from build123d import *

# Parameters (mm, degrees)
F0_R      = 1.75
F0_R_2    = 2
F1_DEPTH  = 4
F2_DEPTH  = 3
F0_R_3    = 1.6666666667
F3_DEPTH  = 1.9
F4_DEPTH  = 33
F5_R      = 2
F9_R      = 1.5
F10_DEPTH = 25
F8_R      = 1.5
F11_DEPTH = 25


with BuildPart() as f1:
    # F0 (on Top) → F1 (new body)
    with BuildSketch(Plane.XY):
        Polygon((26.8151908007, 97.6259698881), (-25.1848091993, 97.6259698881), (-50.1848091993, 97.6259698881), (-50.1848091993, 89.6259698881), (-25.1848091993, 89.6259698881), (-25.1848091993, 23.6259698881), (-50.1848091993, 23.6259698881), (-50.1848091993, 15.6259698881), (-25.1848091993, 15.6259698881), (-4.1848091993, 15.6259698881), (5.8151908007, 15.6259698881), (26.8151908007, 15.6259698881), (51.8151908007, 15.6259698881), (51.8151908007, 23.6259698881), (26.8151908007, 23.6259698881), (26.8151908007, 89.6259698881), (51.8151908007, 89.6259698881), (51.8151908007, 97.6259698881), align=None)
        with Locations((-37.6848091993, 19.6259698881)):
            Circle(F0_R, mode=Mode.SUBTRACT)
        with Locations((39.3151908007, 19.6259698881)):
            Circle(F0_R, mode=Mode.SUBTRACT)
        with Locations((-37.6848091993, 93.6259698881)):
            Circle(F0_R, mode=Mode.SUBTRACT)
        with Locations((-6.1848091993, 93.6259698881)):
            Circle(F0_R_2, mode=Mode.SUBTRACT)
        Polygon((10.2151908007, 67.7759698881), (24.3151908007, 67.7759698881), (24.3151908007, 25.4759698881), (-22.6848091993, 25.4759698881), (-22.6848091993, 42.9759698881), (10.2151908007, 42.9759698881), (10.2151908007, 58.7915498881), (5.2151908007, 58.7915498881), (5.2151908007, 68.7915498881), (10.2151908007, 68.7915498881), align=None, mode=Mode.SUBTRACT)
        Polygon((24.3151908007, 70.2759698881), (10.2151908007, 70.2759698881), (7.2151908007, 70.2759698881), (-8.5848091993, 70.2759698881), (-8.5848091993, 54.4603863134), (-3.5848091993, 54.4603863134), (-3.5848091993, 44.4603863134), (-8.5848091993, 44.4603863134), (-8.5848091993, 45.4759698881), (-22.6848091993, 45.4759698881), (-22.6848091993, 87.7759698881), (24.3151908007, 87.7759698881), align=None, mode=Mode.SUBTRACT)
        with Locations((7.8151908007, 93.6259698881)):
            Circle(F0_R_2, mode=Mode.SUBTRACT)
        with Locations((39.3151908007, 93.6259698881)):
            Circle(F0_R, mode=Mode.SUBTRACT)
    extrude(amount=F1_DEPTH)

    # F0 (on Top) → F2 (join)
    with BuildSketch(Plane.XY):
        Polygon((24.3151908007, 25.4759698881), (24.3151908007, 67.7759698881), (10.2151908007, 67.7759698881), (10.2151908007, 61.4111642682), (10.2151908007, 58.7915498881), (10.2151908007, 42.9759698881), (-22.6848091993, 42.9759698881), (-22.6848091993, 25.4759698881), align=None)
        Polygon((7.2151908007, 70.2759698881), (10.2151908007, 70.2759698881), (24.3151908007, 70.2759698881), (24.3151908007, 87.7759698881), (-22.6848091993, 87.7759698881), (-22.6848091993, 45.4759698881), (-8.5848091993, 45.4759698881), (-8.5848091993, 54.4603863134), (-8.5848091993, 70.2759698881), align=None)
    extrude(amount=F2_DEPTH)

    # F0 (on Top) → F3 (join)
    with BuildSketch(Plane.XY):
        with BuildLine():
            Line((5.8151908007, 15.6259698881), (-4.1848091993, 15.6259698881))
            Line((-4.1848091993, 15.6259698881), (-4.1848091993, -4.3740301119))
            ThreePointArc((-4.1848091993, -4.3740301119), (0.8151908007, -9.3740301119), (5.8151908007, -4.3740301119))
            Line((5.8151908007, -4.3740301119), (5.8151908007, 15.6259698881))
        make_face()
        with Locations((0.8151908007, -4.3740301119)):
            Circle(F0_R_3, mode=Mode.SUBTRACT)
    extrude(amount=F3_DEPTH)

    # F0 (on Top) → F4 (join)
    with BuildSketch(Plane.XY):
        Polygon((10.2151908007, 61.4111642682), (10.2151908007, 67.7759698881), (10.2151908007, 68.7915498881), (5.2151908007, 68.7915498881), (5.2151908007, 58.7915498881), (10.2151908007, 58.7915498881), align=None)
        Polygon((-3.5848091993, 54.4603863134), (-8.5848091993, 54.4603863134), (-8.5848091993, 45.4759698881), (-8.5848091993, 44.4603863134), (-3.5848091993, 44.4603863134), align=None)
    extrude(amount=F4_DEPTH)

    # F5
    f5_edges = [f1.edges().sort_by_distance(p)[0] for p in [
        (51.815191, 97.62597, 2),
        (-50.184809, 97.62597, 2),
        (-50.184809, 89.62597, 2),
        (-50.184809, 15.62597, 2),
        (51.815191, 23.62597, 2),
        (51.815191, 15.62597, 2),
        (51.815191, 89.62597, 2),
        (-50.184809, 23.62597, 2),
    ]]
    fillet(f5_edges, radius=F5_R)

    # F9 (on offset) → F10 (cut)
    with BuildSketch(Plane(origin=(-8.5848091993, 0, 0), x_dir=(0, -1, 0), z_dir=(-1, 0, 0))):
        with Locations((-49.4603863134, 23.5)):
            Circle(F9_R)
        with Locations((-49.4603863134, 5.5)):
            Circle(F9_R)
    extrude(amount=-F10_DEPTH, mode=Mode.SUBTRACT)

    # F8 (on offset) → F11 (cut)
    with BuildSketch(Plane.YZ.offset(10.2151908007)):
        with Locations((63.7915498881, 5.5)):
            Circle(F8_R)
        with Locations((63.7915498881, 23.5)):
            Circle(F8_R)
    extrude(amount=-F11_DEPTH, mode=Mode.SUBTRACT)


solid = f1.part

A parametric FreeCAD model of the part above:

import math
import FreeCAD as App
import Part
import Sketcher

V = App.Vector


def edges_at(feature, points):
    """Names of the edges that pass closest to the given points."""
    edges = feature.Shape.Edges
    near = lambda p: min(range(len(edges)), key=lambda i: edges[i].distToShape(Part.Vertex(*p))[0])
    return sorted({f"Edge{near(p) + 1}" for p in points})

doc = App.newDocument("Part")
body = doc.addObject("PartDesign::Body", "Body")

# Sketch on XY plane
sketch1 = body.newObject("Sketcher::SketchObject", "Sketch")
sketch1.AttachmentSupport = (doc.getObject("XY_Plane"), [""])
sketch1.MapMode = "FlatFace"
sketch1.addGeometry([
    Part.LineSegment(V(-50.184809, 97.62597, 0), V(-50.184809, 89.62597, 0)),  # 0
    Part.LineSegment(V(-50.184809, 89.62597, 0), V(-25.184809, 89.62597, 0)),  # 1
    Part.LineSegment(V(-25.184809, 89.62597, 0), V(-25.184809, 23.62597, 0)),  # 2
    Part.LineSegment(V(-25.184809, 23.62597, 0), V(-50.184809, 23.62597, 0)),  # 3
    Part.LineSegment(V(-50.184809, 23.62597, 0), V(-50.184809, 15.62597, 0)),  # 4
    Part.LineSegment(V(-50.184809, 15.62597, 0), V(51.815191, 15.62597, 0)),  # 5
    Part.LineSegment(V(51.815191, 15.62597, 0), V(51.815191, 23.62597, 0)),  # 6
    Part.LineSegment(V(51.815191, 23.62597, 0), V(26.815191, 23.62597, 0)),  # 7
    Part.LineSegment(V(26.815191, 23.62597, 0), V(26.815191, 89.62597, 0)),  # 8
    Part.LineSegment(V(26.815191, 89.62597, 0), V(51.815191, 89.62597, 0)),  # 9
    Part.LineSegment(V(51.815191, 89.62597, 0), V(51.815191, 97.62597, 0)),  # 10
    Part.LineSegment(V(51.815191, 97.62597, 0), V(-50.184809, 97.62597, 0)),  # 11
    Part.Circle(V(-37.684809, 19.62597, 0), V(0, 0, 1), 1.75),  # 12
    Part.LineSegment(V(10.215191, 68.79155, 0), V(10.215191, 67.77597, 0)),  # 13
    Part.LineSegment(V(10.215191, 67.77597, 0), V(24.315191, 67.77597, 0)),  # 14
    Part.LineSegment(V(24.315191, 67.77597, 0), V(24.315191, 25.47597, 0)),  # 15
    Part.LineSegment(V(24.315191, 25.47597, 0), V(-22.684809, 25.47597, 0)),  # 16
    Part.LineSegment(V(-22.684809, 25.47597, 0), V(-22.684809, 42.97597, 0)),  # 17
    Part.LineSegment(V(-22.684809, 42.97597, 0), V(10.215191, 42.97597, 0)),  # 18
    Part.LineSegment(V(10.215191, 42.97597, 0), V(10.215191, 58.79155, 0)),  # 19
    Part.LineSegment(V(10.215191, 58.79155, 0), V(5.215191, 58.79155, 0)),  # 20
    Part.LineSegment(V(5.215191, 58.79155, 0), V(5.215191, 68.79155, 0)),  # 21
    Part.LineSegment(V(5.215191, 68.79155, 0), V(10.215191, 68.79155, 0)),  # 22
    Part.Circle(V(39.315191, 19.62597, 0), V(0, 0, 1), 1.75),  # 23
    Part.LineSegment(V(24.315191, 87.77597, 0), V(24.315191, 70.27597, 0)),  # 24
    Part.LineSegment(V(24.315191, 70.27597, 0), V(-8.584809, 70.27597, 0)),  # 25
    Part.LineSegment(V(-8.584809, 70.27597, 0), V(-8.584809, 54.460386, 0)),  # 26
    Part.LineSegment(V(-8.584809, 54.460386, 0), V(-3.584809, 54.460386, 0)),  # 27
    Part.LineSegment(V(-3.584809, 54.460386, 0), V(-3.584809, 44.460386, 0)),  # 28
    Part.LineSegment(V(-3.584809, 44.460386, 0), V(-8.584809, 44.460386, 0)),  # 29
    Part.LineSegment(V(-8.584809, 44.460386, 0), V(-8.584809, 45.47597, 0)),  # 30
    Part.LineSegment(V(-8.584809, 45.47597, 0), V(-22.684809, 45.47597, 0)),  # 31
    Part.LineSegment(V(-22.684809, 45.47597, 0), V(-22.684809, 87.77597, 0)),  # 32
    Part.LineSegment(V(-22.684809, 87.77597, 0), V(24.315191, 87.77597, 0)),  # 33
    Part.Circle(V(-37.684809, 93.62597, 0), V(0, 0, 1), 1.75),  # 34
    Part.Circle(V(-6.184809, 93.62597, 0), V(0, 0, 1), 2),  # 35
    Part.Circle(V(7.815191, 93.62597, 0), V(0, 0, 1), 2),  # 36
    Part.Circle(V(39.315191, 93.62597, 0), V(0, 0, 1), 1.75),  # 37
], False)
sketch1.addConstraint([
    Sketcher.Constraint("Coincident", 0, 2, 1, 1),
    Sketcher.Constraint("Coincident", 1, 2, 2, 1),
    Sketcher.Constraint("Coincident", 2, 2, 3, 1),
    Sketcher.Constraint("Coincident", 3, 2, 4, 1),
    Sketcher.Constraint("Coincident", 4, 2, 5, 1),
    Sketcher.Constraint("Coincident", 5, 2, 6, 1),
    Sketcher.Constraint("Coincident", 6, 2, 7, 1),
    Sketcher.Constraint("Coincident", 7, 2, 8, 1),
    Sketcher.Constraint("Coincident", 8, 2, 9, 1),
    Sketcher.Constraint("Coincident", 9, 2, 10, 1),
    Sketcher.Constraint("Coincident", 10, 2, 11, 1),
    Sketcher.Constraint("Coincident", 11, 2, 0, 1),
    Sketcher.Constraint("Coincident", 13, 2, 14, 1),
    Sketcher.Constraint("Coincident", 14, 2, 15, 1),
    Sketcher.Constraint("Coincident", 15, 2, 16, 1),
    Sketcher.Constraint("Coincident", 16, 2, 17, 1),
    Sketcher.Constraint("Coincident", 17, 2, 18, 1),
    Sketcher.Constraint("Coincident", 18, 2, 19, 1),
    Sketcher.Constraint("Coincident", 19, 2, 20, 1),
    Sketcher.Constraint("Coincident", 20, 2, 21, 1),
    Sketcher.Constraint("Coincident", 21, 2, 22, 1),
    Sketcher.Constraint("Coincident", 22, 2, 13, 1),
    Sketcher.Constraint("Coincident", 24, 2, 25, 1),
    Sketcher.Constraint("Coincident", 25, 2, 26, 1),
    Sketcher.Constraint("Coincident", 26, 2, 27, 1),
    Sketcher.Constraint("Coincident", 27, 2, 28, 1),
    Sketcher.Constraint("Coincident", 28, 2, 29, 1),
    Sketcher.Constraint("Coincident", 29, 2, 30, 1),
    Sketcher.Constraint("Coincident", 30, 2, 31, 1),
    Sketcher.Constraint("Coincident", 31, 2, 32, 1),
    Sketcher.Constraint("Coincident", 32, 2, 33, 1),
    Sketcher.Constraint("Coincident", 33, 2, 24, 1),
    Sketcher.Constraint("Vertical", 0),
    Sketcher.Constraint("Horizontal", 1),
    Sketcher.Constraint("Vertical", 2),
    Sketcher.Constraint("Horizontal", 3),
    Sketcher.Constraint("Vertical", 4),
    Sketcher.Constraint("Horizontal", 5),
    Sketcher.Constraint("Vertical", 6),
    Sketcher.Constraint("Horizontal", 7),
    Sketcher.Constraint("Vertical", 8),
    Sketcher.Constraint("Horizontal", 9),
    Sketcher.Constraint("Vertical", 10),
    Sketcher.Constraint("Horizontal", 11),
    Sketcher.Constraint("Vertical", 13),
    Sketcher.Constraint("Horizontal", 14),
    Sketcher.Constraint("Vertical", 15),
    Sketcher.Constraint("Horizontal", 16),
    Sketcher.Constraint("Vertical", 17),
    Sketcher.Constraint("Horizontal", 18),
    Sketcher.Constraint("Vertical", 19),
    Sketcher.Constraint("Horizontal", 20),
    Sketcher.Constraint("Vertical", 21),
    Sketcher.Constraint("Horizontal", 22),
    Sketcher.Constraint("Vertical", 24),
    Sketcher.Constraint("Horizontal", 25),
    Sketcher.Constraint("Vertical", 26),
    Sketcher.Constraint("Horizontal", 27),
    Sketcher.Constraint("Vertical", 28),
    Sketcher.Constraint("Horizontal", 29),
    Sketcher.Constraint("Vertical", 30),
    Sketcher.Constraint("Horizontal", 31),
    Sketcher.Constraint("Vertical", 32),
    Sketcher.Constraint("Horizontal", 33),
    Sketcher.Constraint("Equal", 12, 23),
    Sketcher.Constraint("Equal", 23, 34),
    Sketcher.Constraint("Equal", 35, 36),
    Sketcher.Constraint("Equal", 34, 37),
    Sketcher.Constraint("Horizontal", 12, 3, 23, 3),
    Sketcher.Constraint("Horizontal", 34, 3, 35, 3),
    Sketcher.Constraint("Horizontal", 35, 3, 36, 3),
    Sketcher.Constraint("Horizontal", 36, 3, 37, 3),
    Sketcher.Constraint("Horizontal", 3, 2, 6, 2),
    Sketcher.Constraint("Horizontal", 1, 2, 8, 2),
    Sketcher.Constraint("Vertical", 12, 3, 34, 3),
    Sketcher.Constraint("Vertical", 23, 3, 37, 3),
    Sketcher.Constraint("Vertical", 0, 2, 3, 2),
    Sketcher.Constraint("Vertical", 6, 2, 9, 2),
    Sketcher.Constraint("Vertical", 13, 2, 18, 2),
    Sketcher.Constraint("Vertical", 15, 2, 24, 2),
    Sketcher.Constraint("Vertical", 26, 2, 29, 2),
    Sketcher.Constraint("Vertical", 17, 2, 31, 2),
    Sketcher.Constraint("Equal", 3, 7),
    Sketcher.Constraint("Equal", 18, 25),
    Sketcher.Constraint("Equal", 22, 27),
    Sketcher.Constraint("Equal", 0, 4),
    Sketcher.Constraint("Equal", 17, 24),
    Sketcher.Constraint("Equal", 21, 28),
    Sketcher.Constraint("Equal", 15, 32),
    Sketcher.Constraint("Diameter", 35, 4.0),
    Sketcher.Constraint("Diameter", 12, 3.5),
    Sketcher.Constraint("DistanceX", 1, 1, 1, 2, 25.0),
    Sketcher.Constraint("DistanceX", 5, 1, 5, 2, 102.0),
    Sketcher.Constraint("DistanceX", 16, 2, 16, 1, 47.0),
    Sketcher.Constraint("DistanceX", 20, 2, 20, 1, 5.0),
    Sketcher.Constraint("DistanceY", 0, 2, 0, 1, 8.0),
    Sketcher.Constraint("DistanceY", 2, 2, 2, 1, 66.0),
    Sketcher.Constraint("DistanceY", 21, 1, 21, 2, 10.0),
    Sketcher.Constraint("DistanceX", 14, 1, 14, 2, 14.1),
    Sketcher.Constraint("DistanceY", 15, 2, 15, 1, 42.3),
    Sketcher.Constraint("DistanceY", 17, 1, 17, 2, 17.5),
    Sketcher.Constraint("DistanceX", 12, 3, 23, 3, 77.0),
    Sketcher.Constraint("DistanceY", 12, 3, 34, 3, 74.0),
    Sketcher.Constraint("DistanceX", 35, 3, 36, 3, 14.0),
    Sketcher.Constraint("DistanceY", 0, 2, 34, 3, 4.0),
    Sketcher.Constraint("DistanceX", 0, 2, 35, 3, 44.0),
    Sketcher.Constraint("DistanceX", 14, 2, 37, 3, 15.0),
    Sketcher.Constraint("DistanceY", 14, 2, 33, 2, 20.0),
    Sketcher.Constraint("DistanceX", 34, 3, 35, 3, 31.5),
    Sketcher.Constraint("DistanceY", 13, 2, 36, 3, 25.85),
    Sketcher.Constraint("DistanceY", 13, 2, 13, 1, 1.01558),
    Sketcher.Constraint("DistanceY", 26, 2, 26, 1, 15.815584),
    Sketcher.Constraint("DistanceX", 12, 3, -1, 1, 37.684809),
    Sketcher.Constraint("DistanceY", -1, 1, 12, 3, 19.62597),
])
pad1 = body.newObject("PartDesign::Pad", "Pad")
pad1.Profile = sketch1
pad1.Length = 4

# Sketch on XY plane
sketch2 = body.newObject("Sketcher::SketchObject", "Sketch001")
sketch2.AttachmentSupport = (doc.getObject("XY_Plane"), [""])
sketch2.MapMode = "FlatFace"
sketch2.addGeometry([
    Part.LineSegment(V(24.315191, 25.47597, 0), V(24.315191, 67.77597, 0)),  # 0
    Part.LineSegment(V(24.315191, 67.77597, 0), V(10.215191, 67.77597, 0)),  # 1
    Part.LineSegment(V(10.215191, 67.77597, 0), V(10.215191, 42.97597, 0)),  # 2
    Part.LineSegment(V(10.215191, 42.97597, 0), V(-22.684809, 42.97597, 0)),  # 3
    Part.LineSegment(V(-22.684809, 42.97597, 0), V(-22.684809, 25.47597, 0)),  # 4
    Part.LineSegment(V(-22.684809, 25.47597, 0), V(24.315191, 25.47597, 0)),  # 5
    Part.LineSegment(V(24.315191, 70.27597, 0), V(24.315191, 87.77597, 0)),  # 6
    Part.LineSegment(V(24.315191, 87.77597, 0), V(-22.684809, 87.77597, 0)),  # 7
    Part.LineSegment(V(-22.684809, 87.77597, 0), V(-22.684809, 45.47597, 0)),  # 8
    Part.LineSegment(V(-22.684809, 45.47597, 0), V(-8.584809, 45.47597, 0)),  # 9
    Part.LineSegment(V(-8.584809, 45.47597, 0), V(-8.584809, 70.27597, 0)),  # 10
    Part.LineSegment(V(-8.584809, 70.27597, 0), V(24.315191, 70.27597, 0)),  # 11
], False)
sketch2.addConstraint([
    Sketcher.Constraint("Coincident", 0, 2, 1, 1),
    Sketcher.Constraint("Coincident", 1, 2, 2, 1),
    Sketcher.Constraint("Coincident", 2, 2, 3, 1),
    Sketcher.Constraint("Coincident", 3, 2, 4, 1),
    Sketcher.Constraint("Coincident", 4, 2, 5, 1),
    Sketcher.Constraint("Coincident", 5, 2, 0, 1),
    Sketcher.Constraint("Coincident", 6, 2, 7, 1),
    Sketcher.Constraint("Coincident", 7, 2, 8, 1),
    Sketcher.Constraint("Coincident", 8, 2, 9, 1),
    Sketcher.Constraint("Coincident", 9, 2, 10, 1),
    Sketcher.Constraint("Coincident", 10, 2, 11, 1),
    Sketcher.Constraint("Coincident", 11, 2, 6, 1),
    Sketcher.Constraint("Vertical", 0),
    Sketcher.Constraint("Horizontal", 1),
    Sketcher.Constraint("Vertical", 2),
    Sketcher.Constraint("Horizontal", 3),
    Sketcher.Constraint("Vertical", 4),
    Sketcher.Constraint("Horizontal", 5),
    Sketcher.Constraint("Vertical", 6),
    Sketcher.Constraint("Horizontal", 7),
    Sketcher.Constraint("Vertical", 8),
    Sketcher.Constraint("Horizontal", 9),
    Sketcher.Constraint("Vertical", 10),
    Sketcher.Constraint("Horizontal", 11),
    Sketcher.Constraint("Vertical", 5, 2, 6, 2),
    Sketcher.Constraint("Vertical", 4, 2, 7, 2),
    Sketcher.Constraint("Equal", 1, 9),
    Sketcher.Constraint("Equal", 4, 6),
    Sketcher.Constraint("Equal", 0, 8),
    Sketcher.Constraint("DistanceX", 5, 1, 5, 2, 47.0),
    Sketcher.Constraint("DistanceX", 1, 2, 1, 1, 14.1),
    Sketcher.Constraint("DistanceY", 0, 1, 0, 2, 42.3),
    Sketcher.Constraint("DistanceY", 2, 2, 2, 1, 24.8),
    Sketcher.Constraint("DistanceY", 0, 2, 6, 2, 20.0),
    Sketcher.Constraint("DistanceX", -1, 1, 0, 2, 24.315191),
    Sketcher.Constraint("DistanceY", -1, 1, 0, 2, 67.77597),
])
pad2 = body.newObject("PartDesign::Pad", "Pad001")
pad2.Profile = sketch2
pad2.Length = 3

# Sketch on XY plane
sketch3 = body.newObject("Sketcher::SketchObject", "Sketch002")
sketch3.AttachmentSupport = (doc.getObject("XY_Plane"), [""])
sketch3.MapMode = "FlatFace"
sketch3.addGeometry([
    Part.LineSegment(V(5.815191, 15.62597, 0), V(-4.184809, 15.62597, 0)),  # 0
    Part.LineSegment(V(-4.184809, 15.62597, 0), V(-4.184809, -4.37403, 0)),  # 1
    Part.ArcOfCircle(Part.Circle(V(0.815191, -4.37403, 0), V(0, 0, 1), 5), math.radians(180), math.radians(360)),  # 2
    Part.LineSegment(V(5.815191, -4.37403, 0), V(5.815191, 15.62597, 0)),  # 3
    Part.Circle(V(0.815191, -4.37403, 0), V(0, 0, 1), 1.666667),  # 4
], False)
sketch3.addConstraint([
    Sketcher.Constraint("Coincident", 0, 2, 1, 1),
    Sketcher.Constraint("Tangent", 1, 2, 2, 1),
    Sketcher.Constraint("Tangent", 2, 2, 3, 1),
    Sketcher.Constraint("Coincident", 3, 2, 0, 1),
    Sketcher.Constraint("Horizontal", 0),
    Sketcher.Constraint("Vertical", 1),
    Sketcher.Constraint("Vertical", 3),
    Sketcher.Constraint("Coincident", 4, 3, 2, 3),
    Sketcher.Constraint("Radius", 2, 5.0),
    Sketcher.Constraint("DistanceY", 1, 2, 1, 1, 20.0),
    Sketcher.Constraint("Diameter", 4, 3.333333),
    Sketcher.Constraint("DistanceX", -1, 1, 2, 3, 0.815191),
    Sketcher.Constraint("DistanceY", 2, 3, -1, 1, 4.37403),
])
pad3 = body.newObject("PartDesign::Pad", "Pad002")
pad3.Profile = sketch3
pad3.Length = 1.9

# Sketch on XY plane
sketch4 = body.newObject("Sketcher::SketchObject", "Sketch003")
sketch4.AttachmentSupport = (doc.getObject("XY_Plane"), [""])
sketch4.MapMode = "FlatFace"
sketch4.addGeometry([
    Part.LineSegment(V(10.215191, 68.79155, 0), V(5.215191, 68.79155, 0)),  # 0
    Part.LineSegment(V(5.215191, 68.79155, 0), V(5.215191, 58.79155, 0)),  # 1
    Part.LineSegment(V(5.215191, 58.79155, 0), V(10.215191, 58.79155, 0)),  # 2
    Part.LineSegment(V(10.215191, 58.79155, 0), V(10.215191, 68.79155, 0)),  # 3
    Part.LineSegment(V(-3.584809, 54.460386, 0), V(-8.584809, 54.460386, 0)),  # 4
    Part.LineSegment(V(-8.584809, 54.460386, 0), V(-8.584809, 44.460386, 0)),  # 5
    Part.LineSegment(V(-8.584809, 44.460386, 0), V(-3.584809, 44.460386, 0)),  # 6
    Part.LineSegment(V(-3.584809, 44.460386, 0), V(-3.584809, 54.460386, 0)),  # 7
], False)
sketch4.addConstraint([
    Sketcher.Constraint("Coincident", 0, 2, 1, 1),
    Sketcher.Constraint("Coincident", 1, 2, 2, 1),
    Sketcher.Constraint("Coincident", 2, 2, 3, 1),
    Sketcher.Constraint("Coincident", 3, 2, 0, 1),
    Sketcher.Constraint("Coincident", 4, 2, 5, 1),
    Sketcher.Constraint("Coincident", 5, 2, 6, 1),
    Sketcher.Constraint("Coincident", 6, 2, 7, 1),
    Sketcher.Constraint("Coincident", 7, 2, 4, 1),
    Sketcher.Constraint("Horizontal", 0),
    Sketcher.Constraint("Vertical", 1),
    Sketcher.Constraint("Horizontal", 2),
    Sketcher.Constraint("Vertical", 3),
    Sketcher.Constraint("Horizontal", 4),
    Sketcher.Constraint("Vertical", 5),
    Sketcher.Constraint("Horizontal", 6),
    Sketcher.Constraint("Vertical", 7),
    Sketcher.Constraint("Equal", 2, 4),
    Sketcher.Constraint("Equal", 3, 5),
    Sketcher.Constraint("DistanceX", 0, 2, 0, 1, 5.0),
    Sketcher.Constraint("DistanceY", 1, 2, 1, 1, 10.0),
    Sketcher.Constraint("DistanceX", 4, 2, 1, 2, 13.8),
    Sketcher.Constraint("DistanceX", -1, 1, 0, 2, 5.215191),
    Sketcher.Constraint("DistanceY", -1, 1, 0, 2, 68.79155),
    Sketcher.Constraint("DistanceY", -1, 1, 4, 2, 54.460386),
])
pad4 = body.newObject("PartDesign::Pad", "Pad003")
pad4.Profile = sketch4
pad4.Length = 33
doc.recompute()

fillet = body.newObject("PartDesign::Fillet", "Fillet")
fillet.Base = (pad4, edges_at(pad4, [
    (51.815, 97.626, 2),
    (-50.185, 97.626, 2),
    (-50.185, 89.626, 2),
    (-50.185, 15.626, 2),
    (51.815, 23.626, 2),
    (51.815, 15.626, 2),
    (51.815, 89.626, 2),
    (-50.185, 23.626, 2),
]))
fillet.Radius = 2

# Sketch on YZ plane
sketch5 = body.newObject("Sketcher::SketchObject", "Sketch004")
sketch5.AttachmentSupport = (doc.getObject("YZ_Plane"), [""])
sketch5.MapMode = "FlatFace"
sketch5.AttachmentOffset = App.Placement(V(0, 0, -8.584809), App.Rotation())
sketch5.addGeometry([
    Part.Circle(V(49.460386, 23.5, 0), V(0, 0, 1), 1.5),
    Part.Circle(V(49.460386, 5.5, 0), V(0, 0, 1), 1.5),
], False)
sketch5.addConstraint([
    Sketcher.Constraint("Equal", 0, 1),
    Sketcher.Constraint("Vertical", 0, 3, 1, 3),
    Sketcher.Constraint("Diameter", 0, 3.0),
    Sketcher.Constraint("DistanceY", 1, 3, 0, 3, 18.0),
    Sketcher.Constraint("DistanceY", -1, 1, 0, 3, 23.5),
    Sketcher.Constraint("DistanceX", -1, 1, 0, 3, 49.460386),
])
pocket1 = body.newObject("PartDesign::Pocket", "Pocket")
pocket1.Profile = sketch5
pocket1.Length = 25
pocket1.Reversed = True

# Sketch on YZ plane
sketch6 = body.newObject("Sketcher::SketchObject", "Sketch005")
sketch6.AttachmentSupport = (doc.getObject("YZ_Plane"), [""])
sketch6.MapMode = "FlatFace"
sketch6.AttachmentOffset = App.Placement(V(0, 0, 10.215191), App.Rotation())
sketch6.addGeometry([
    Part.Circle(V(63.79155, 5.5, 0), V(0, 0, 1), 1.5),
    Part.Circle(V(63.79155, 23.5, 0), V(0, 0, 1), 1.5),
], False)
sketch6.addConstraint([
    Sketcher.Constraint("Equal", 0, 1),
    Sketcher.Constraint("Vertical", 0, 3, 1, 3),
    Sketcher.Constraint("Diameter", 0, 3.0),
    Sketcher.Constraint("DistanceY", 0, 3, 1, 3, 18.0),
    Sketcher.Constraint("DistanceY", -1, 1, 0, 3, 5.5),
    Sketcher.Constraint("DistanceX", -1, 1, 0, 3, 63.79155),
])
pocket2 = body.newObject("PartDesign::Pocket", "Pocket001")
pocket2.Profile = sketch6
pocket2.Length = 25

doc.recompute()
